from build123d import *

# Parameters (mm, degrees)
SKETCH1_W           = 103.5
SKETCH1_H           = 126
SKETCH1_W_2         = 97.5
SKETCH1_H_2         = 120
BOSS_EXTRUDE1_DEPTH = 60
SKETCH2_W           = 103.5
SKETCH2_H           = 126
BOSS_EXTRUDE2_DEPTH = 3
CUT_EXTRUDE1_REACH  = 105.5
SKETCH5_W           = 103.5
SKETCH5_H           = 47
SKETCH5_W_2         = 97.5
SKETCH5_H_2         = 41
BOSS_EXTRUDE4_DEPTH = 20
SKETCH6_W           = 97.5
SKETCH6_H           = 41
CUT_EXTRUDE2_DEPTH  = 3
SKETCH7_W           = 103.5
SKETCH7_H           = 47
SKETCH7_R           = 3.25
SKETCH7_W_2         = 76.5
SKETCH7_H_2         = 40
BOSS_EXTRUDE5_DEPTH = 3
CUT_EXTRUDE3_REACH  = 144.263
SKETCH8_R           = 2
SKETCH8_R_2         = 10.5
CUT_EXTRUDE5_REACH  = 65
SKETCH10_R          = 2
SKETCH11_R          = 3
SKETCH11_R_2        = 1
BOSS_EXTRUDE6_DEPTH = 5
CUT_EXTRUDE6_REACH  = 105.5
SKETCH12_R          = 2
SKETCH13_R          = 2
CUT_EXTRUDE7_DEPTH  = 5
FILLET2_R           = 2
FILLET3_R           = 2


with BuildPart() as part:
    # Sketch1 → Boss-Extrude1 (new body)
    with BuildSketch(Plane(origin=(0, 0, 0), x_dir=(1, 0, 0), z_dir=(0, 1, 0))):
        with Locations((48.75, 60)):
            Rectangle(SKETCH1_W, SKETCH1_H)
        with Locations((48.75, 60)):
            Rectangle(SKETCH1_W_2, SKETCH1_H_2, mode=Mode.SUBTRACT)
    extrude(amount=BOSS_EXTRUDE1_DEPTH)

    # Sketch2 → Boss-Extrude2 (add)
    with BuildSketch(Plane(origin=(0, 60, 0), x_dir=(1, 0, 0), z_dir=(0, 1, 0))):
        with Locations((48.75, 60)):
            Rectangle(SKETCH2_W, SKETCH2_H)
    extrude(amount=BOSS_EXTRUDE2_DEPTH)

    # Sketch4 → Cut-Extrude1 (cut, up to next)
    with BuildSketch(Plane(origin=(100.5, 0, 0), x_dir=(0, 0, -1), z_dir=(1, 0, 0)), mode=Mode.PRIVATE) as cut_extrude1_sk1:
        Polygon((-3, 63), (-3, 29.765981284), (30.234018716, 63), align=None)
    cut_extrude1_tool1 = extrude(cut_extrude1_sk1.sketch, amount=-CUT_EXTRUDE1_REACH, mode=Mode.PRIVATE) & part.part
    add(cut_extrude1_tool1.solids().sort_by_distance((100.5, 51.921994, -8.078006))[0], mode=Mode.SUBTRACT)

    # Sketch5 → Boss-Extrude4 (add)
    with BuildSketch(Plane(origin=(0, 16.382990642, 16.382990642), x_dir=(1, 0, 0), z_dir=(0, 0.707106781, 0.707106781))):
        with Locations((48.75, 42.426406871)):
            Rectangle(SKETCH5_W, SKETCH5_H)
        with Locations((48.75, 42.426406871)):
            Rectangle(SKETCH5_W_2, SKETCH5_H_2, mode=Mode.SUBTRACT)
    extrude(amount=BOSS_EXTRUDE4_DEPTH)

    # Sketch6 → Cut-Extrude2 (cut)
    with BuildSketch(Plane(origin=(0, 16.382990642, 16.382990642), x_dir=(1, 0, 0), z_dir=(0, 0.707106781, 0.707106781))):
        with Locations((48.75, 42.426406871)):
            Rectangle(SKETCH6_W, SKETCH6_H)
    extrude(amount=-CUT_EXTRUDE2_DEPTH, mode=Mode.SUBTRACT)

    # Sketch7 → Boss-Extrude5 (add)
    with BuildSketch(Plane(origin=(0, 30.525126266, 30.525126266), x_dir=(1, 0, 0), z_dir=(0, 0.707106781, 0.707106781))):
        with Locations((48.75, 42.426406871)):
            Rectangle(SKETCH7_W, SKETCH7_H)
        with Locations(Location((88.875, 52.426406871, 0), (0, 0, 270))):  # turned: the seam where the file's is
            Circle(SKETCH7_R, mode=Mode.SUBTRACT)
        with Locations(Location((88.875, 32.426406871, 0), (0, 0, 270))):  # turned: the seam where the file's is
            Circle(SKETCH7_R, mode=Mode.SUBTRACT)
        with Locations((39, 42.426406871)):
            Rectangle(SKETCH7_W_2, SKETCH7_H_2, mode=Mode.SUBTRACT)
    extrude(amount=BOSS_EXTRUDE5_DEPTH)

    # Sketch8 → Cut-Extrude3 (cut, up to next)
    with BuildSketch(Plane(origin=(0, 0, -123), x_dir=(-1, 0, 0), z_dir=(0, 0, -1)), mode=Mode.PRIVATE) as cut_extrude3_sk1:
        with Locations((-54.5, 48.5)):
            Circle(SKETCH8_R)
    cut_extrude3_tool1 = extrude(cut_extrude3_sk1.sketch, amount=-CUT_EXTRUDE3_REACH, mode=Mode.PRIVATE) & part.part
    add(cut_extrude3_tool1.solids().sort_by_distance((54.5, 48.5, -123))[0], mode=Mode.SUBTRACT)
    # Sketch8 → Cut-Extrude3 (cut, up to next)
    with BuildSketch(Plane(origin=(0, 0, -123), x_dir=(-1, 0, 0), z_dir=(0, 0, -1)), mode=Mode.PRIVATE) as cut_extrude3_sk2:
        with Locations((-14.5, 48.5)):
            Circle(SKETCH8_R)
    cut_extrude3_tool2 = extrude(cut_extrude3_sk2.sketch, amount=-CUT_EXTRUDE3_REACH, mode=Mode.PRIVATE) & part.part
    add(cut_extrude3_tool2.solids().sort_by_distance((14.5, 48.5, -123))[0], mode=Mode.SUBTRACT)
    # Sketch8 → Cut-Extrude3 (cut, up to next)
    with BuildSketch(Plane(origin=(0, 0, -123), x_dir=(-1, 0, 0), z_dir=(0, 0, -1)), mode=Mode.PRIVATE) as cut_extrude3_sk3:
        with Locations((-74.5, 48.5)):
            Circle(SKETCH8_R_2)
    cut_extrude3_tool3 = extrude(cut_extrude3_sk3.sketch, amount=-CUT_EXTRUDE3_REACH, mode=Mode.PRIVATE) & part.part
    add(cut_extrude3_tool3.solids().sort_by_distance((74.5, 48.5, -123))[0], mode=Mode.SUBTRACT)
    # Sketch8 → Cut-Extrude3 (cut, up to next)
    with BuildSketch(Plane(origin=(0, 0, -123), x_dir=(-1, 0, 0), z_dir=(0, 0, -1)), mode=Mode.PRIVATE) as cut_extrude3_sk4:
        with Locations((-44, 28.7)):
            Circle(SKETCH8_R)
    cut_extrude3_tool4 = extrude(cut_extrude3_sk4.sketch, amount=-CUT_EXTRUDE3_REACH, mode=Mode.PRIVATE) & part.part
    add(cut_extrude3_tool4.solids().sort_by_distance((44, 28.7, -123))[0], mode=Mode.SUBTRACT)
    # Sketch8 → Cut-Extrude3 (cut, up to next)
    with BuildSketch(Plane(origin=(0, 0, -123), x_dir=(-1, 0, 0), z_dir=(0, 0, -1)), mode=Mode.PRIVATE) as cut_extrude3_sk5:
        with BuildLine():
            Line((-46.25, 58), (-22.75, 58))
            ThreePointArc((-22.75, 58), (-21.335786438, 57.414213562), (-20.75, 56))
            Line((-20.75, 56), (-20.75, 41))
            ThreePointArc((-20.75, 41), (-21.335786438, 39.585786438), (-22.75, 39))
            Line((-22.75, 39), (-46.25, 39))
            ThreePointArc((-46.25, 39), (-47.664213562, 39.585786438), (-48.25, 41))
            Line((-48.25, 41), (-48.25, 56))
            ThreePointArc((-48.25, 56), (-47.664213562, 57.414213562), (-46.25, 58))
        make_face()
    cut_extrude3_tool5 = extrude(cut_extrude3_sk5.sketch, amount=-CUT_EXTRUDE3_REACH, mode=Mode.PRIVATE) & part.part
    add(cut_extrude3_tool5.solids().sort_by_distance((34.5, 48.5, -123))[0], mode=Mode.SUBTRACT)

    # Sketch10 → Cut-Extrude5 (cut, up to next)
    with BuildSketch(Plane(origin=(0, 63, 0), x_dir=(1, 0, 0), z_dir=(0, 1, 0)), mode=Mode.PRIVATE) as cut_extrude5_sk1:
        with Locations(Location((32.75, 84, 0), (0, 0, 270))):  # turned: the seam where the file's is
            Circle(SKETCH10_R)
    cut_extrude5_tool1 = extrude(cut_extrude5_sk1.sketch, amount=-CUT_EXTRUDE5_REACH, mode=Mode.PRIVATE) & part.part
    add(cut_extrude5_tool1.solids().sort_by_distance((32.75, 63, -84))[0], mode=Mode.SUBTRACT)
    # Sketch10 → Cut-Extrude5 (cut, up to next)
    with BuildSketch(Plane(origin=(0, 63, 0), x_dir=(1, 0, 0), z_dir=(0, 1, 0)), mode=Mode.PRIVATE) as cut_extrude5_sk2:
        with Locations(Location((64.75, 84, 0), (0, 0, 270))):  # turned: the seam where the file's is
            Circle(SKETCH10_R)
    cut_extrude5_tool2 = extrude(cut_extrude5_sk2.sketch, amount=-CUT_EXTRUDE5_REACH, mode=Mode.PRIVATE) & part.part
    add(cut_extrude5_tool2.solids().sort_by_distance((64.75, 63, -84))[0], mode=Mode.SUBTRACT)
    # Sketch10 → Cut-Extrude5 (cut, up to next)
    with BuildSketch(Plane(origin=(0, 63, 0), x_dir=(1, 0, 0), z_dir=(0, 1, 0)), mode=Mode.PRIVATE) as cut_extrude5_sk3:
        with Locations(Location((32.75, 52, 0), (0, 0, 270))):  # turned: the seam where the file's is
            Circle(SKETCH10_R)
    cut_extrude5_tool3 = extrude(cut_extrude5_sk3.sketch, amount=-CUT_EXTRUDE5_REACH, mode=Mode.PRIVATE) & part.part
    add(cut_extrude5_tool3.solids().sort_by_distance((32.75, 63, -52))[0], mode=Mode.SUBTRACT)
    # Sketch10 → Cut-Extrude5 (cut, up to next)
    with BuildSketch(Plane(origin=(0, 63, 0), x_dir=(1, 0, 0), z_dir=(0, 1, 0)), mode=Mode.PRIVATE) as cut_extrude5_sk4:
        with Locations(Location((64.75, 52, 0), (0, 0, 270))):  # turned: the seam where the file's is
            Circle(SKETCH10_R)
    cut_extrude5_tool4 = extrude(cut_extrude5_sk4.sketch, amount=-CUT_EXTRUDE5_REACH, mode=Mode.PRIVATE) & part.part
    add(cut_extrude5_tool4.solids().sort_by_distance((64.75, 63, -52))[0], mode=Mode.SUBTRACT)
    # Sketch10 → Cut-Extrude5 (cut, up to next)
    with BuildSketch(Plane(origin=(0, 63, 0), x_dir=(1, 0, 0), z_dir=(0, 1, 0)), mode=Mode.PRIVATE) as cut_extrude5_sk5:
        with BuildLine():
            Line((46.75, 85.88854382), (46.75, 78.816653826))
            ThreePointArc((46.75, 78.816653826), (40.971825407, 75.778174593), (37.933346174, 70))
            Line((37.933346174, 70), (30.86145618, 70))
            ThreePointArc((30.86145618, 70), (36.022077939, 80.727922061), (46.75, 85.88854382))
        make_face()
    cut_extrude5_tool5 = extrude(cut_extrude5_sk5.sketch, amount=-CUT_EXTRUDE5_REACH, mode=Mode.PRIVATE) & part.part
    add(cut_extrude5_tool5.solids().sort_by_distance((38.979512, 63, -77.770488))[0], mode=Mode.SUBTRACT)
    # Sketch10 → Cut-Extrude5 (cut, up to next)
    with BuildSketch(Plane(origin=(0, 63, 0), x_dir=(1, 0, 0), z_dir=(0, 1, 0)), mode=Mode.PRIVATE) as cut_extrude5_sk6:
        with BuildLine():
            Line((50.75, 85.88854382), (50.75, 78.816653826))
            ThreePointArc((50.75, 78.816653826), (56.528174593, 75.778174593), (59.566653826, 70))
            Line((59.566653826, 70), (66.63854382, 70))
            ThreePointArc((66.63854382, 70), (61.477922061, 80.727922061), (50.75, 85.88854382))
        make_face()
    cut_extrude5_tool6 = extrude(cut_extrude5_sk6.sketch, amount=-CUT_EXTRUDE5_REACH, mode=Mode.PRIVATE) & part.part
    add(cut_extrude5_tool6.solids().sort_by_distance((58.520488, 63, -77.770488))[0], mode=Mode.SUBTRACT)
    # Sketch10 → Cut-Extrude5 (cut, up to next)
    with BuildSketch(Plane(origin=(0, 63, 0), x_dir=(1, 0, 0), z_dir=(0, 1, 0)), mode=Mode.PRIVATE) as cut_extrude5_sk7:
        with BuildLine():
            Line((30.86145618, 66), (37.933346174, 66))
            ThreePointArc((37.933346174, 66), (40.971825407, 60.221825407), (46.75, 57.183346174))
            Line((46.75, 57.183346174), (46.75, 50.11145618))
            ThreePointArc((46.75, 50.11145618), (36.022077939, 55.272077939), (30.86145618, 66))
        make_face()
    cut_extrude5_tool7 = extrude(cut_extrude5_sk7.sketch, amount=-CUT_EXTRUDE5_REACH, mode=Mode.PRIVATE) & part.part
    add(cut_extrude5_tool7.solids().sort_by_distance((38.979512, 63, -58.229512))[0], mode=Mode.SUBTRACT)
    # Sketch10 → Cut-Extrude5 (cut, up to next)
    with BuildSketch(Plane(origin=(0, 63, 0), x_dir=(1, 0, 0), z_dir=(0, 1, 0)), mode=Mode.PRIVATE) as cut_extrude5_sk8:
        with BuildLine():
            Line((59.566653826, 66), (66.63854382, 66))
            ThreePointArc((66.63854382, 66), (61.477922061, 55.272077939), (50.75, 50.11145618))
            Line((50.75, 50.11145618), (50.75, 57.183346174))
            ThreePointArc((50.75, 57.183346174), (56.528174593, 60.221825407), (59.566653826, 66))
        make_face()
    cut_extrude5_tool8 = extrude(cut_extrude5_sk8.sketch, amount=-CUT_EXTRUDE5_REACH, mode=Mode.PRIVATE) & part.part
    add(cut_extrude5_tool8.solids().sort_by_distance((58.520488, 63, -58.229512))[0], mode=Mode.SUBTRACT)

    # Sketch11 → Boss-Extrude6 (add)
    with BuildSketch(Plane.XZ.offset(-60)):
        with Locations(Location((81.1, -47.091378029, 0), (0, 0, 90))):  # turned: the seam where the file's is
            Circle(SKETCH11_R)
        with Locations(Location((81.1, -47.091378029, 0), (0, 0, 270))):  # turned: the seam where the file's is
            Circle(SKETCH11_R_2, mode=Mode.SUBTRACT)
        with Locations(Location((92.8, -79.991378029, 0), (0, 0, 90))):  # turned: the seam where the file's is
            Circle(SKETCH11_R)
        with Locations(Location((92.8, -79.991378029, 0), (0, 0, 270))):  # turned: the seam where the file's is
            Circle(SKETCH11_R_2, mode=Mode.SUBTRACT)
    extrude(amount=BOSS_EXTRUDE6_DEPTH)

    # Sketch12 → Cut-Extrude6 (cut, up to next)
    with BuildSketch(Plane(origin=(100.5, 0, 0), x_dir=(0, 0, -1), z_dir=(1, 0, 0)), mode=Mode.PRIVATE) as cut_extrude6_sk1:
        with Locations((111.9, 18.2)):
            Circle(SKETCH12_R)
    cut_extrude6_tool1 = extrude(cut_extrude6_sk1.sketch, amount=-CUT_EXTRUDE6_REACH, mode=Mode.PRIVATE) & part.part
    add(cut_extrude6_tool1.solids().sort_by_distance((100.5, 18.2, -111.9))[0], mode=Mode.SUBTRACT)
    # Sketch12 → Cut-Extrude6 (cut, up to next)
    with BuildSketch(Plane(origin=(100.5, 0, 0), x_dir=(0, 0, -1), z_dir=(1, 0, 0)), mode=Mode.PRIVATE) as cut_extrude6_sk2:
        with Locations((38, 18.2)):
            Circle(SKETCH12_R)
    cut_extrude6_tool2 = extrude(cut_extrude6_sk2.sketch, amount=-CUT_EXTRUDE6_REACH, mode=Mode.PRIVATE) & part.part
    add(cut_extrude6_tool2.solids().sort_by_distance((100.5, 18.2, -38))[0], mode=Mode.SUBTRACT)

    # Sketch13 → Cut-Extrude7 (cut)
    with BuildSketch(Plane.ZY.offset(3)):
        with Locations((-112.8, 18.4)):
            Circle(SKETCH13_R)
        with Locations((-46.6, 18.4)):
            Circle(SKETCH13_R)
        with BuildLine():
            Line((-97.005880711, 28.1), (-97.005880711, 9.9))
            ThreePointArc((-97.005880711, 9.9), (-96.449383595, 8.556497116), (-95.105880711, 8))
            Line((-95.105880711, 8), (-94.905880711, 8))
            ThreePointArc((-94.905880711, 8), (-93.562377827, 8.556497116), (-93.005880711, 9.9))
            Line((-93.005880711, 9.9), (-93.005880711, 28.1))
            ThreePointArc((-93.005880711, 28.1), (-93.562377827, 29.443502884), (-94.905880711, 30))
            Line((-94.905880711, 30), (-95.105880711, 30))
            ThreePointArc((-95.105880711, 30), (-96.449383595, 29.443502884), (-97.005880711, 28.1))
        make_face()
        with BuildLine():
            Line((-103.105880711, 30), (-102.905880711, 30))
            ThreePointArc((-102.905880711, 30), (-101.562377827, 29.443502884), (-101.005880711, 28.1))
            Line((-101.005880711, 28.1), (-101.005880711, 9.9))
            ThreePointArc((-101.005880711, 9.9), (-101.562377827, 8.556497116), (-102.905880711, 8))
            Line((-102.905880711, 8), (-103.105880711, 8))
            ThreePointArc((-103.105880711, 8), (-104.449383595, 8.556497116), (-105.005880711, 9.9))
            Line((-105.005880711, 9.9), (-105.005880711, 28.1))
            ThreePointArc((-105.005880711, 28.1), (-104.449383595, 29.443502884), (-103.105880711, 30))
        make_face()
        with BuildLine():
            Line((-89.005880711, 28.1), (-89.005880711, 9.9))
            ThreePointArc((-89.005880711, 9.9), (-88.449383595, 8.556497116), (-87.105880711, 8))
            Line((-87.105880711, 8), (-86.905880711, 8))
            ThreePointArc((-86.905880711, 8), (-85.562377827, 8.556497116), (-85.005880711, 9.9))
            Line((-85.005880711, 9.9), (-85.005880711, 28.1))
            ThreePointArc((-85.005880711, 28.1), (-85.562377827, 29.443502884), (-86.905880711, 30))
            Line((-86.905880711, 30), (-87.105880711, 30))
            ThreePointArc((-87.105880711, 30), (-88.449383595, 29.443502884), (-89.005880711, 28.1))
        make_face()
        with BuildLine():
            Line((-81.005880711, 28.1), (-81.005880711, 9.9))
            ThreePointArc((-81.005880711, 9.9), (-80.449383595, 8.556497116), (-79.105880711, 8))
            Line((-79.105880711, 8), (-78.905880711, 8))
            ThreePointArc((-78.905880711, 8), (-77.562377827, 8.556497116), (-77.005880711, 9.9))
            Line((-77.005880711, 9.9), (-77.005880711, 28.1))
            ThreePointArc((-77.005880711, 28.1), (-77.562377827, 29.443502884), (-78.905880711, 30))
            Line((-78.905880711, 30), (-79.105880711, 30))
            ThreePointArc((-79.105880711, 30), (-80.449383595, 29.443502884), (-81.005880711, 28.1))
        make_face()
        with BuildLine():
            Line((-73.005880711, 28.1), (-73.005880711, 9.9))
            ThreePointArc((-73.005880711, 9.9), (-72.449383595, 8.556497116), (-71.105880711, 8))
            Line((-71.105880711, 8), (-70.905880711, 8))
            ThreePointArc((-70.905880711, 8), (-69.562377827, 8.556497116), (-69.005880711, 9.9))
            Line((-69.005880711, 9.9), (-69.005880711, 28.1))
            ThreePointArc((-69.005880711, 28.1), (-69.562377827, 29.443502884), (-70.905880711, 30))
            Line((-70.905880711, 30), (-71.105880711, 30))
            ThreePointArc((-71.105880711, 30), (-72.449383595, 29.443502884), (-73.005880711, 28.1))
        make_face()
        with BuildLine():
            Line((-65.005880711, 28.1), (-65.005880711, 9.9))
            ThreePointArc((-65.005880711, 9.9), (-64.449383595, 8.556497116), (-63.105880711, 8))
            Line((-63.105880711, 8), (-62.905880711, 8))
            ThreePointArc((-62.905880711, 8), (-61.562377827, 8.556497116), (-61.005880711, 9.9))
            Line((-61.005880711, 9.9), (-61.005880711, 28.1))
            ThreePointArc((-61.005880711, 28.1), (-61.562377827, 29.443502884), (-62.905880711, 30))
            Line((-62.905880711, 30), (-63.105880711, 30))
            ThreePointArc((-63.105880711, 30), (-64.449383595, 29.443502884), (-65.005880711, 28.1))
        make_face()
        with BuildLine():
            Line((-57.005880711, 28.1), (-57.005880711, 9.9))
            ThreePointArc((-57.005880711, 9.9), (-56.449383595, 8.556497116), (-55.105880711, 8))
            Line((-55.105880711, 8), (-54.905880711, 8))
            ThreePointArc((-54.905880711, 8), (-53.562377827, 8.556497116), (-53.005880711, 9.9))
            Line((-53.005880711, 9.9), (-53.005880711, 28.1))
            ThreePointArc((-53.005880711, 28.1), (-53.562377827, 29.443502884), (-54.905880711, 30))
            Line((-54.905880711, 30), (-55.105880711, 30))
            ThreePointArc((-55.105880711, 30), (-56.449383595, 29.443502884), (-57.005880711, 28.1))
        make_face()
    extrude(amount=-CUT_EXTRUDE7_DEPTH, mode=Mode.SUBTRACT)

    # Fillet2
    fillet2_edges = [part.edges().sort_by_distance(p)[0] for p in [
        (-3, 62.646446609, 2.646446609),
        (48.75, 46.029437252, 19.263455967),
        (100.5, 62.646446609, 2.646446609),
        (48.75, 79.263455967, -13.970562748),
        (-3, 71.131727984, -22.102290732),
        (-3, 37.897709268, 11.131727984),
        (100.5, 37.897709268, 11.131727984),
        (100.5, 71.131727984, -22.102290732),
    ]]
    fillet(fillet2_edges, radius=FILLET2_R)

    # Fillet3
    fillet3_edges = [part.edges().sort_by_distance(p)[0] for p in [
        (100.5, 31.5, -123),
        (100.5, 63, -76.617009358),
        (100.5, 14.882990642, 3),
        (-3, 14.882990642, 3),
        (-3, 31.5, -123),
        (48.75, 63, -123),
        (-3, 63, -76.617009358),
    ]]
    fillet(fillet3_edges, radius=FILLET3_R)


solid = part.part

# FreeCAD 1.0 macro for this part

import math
import FreeCAD as App
import Part
import Sketcher
from FreeCAD import Vector


def edges_at(feature, points):
    """Names of the edges that pass closest to the given points."""
    edges = feature.Shape.Edges
    near = lambda p: min(range(len(edges)), key=lambda i: edges[i].distToShape(Part.Vertex(*p))[0])
    return sorted({f"Edge{near(p) + 1}" for p in points})


def add_polygon(sketch, points):
    """Adds a closed chain of lines whose ends are joined by coincident constraints."""
    first, n = sketch.GeometryCount, len(points)
    for a, b in zip(points, points[1:] + points[:1]):
        sketch.addGeometry(Part.LineSegment(App.Vector(*a, 0), App.Vector(*b, 0)), False)
    for i in range(n):
        sketch.addConstraint(Sketcher.Constraint("Coincident", first + i, 2, first + (i + 1) % n, 1))

doc = App.newDocument("Part")
body = doc.addObject("PartDesign::Body", "Body")

sketch1 = doc.addObject("Sketcher::SketchObject", "Sketch")
body.addObject(sketch1)
sketch1.AttachmentSupport = (doc.XZ_Plane, [""])
sketch1.MapMode = "FlatFace"
add_polygon(sketch1, [(-3, -123), (-3, 3), (100, 3), (100, -123)])
add_polygon(sketch1, [(98, 0), (0, 0), (0, -120), (98, -120)])
sketch1.addConstraint([
    Sketcher.Constraint("Vertical", 0),
    Sketcher.Constraint("Horizontal", 1),
    Sketcher.Constraint("Vertical", 2),
    Sketcher.Constraint("Horizontal", 3),
    Sketcher.Constraint("Horizontal", 4),
    Sketcher.Constraint("Vertical", 5),
    Sketcher.Constraint("Horizontal", 6),
    Sketcher.Constraint("Vertical", 7),
    Sketcher.Constraint("Coincident", 4, 2, -1, 1),
    Sketcher.Constraint("DistanceY", 0, 1, 0, 2, 126.0),
    Sketcher.Constraint("DistanceY", 5, 2, 5, 1, 120.0),
    Sketcher.Constraint("DistanceX", 1, 1, 1, 2, 103.5),
    Sketcher.Constraint("DistanceX", 4, 2, 4, 1, 97.5),
    Sketcher.Constraint("DistanceX", 0, 2, -1, 1, 3.0),
    Sketcher.Constraint("DistanceY", -1, 1, 0, 2, 3.0),
])
pad1 = doc.addObject("PartDesign::Pad", "Pad")
body.addObject(pad1)
pad1.Profile = sketch1
pad1.Length = 60
pad1.Reversed = True

sketch2 = doc.addObject("Sketcher::SketchObject", "Sketch001")
body.addObject(sketch2)
sketch2.AttachmentSupport = (doc.XZ_Plane, [""])
sketch2.MapMode = "FlatFace"
sketch2.AttachmentOffset = App.Placement(Vector(0, 0, -60), App.Rotation())
add_polygon(sketch2, [(-3, -123), (-3, 3), (100, 3), (100, -123)])
sketch2.addConstraint([
    Sketcher.Constraint("Vertical", 0),
    Sketcher.Constraint("Horizontal", 1),
    Sketcher.Constraint("Vertical", 2),
    Sketcher.Constraint("Horizontal", 3),
    Sketcher.Constraint("DistanceY", 0, 1, 0, 2, 126.0),
    Sketcher.Constraint("DistanceX", 1, 1, 1, 2, 103.5),
    Sketcher.Constraint("DistanceX", 0, 2, -1, 1, 3.0),
    Sketcher.Constraint("DistanceY", -1, 1, 0, 2, 3.0),
])
pad2 = doc.addObject("PartDesign::Pad", "Pad001")
body.addObject(pad2)
pad2.Profile = sketch2
pad2.Length = 3
pad2.Reversed = True

sketch3 = doc.addObject("Sketcher::SketchObject", "Sketch002")
body.addObject(sketch3)
sketch3.AttachmentSupport = (doc.YZ_Plane, [""])
sketch3.MapMode = "FlatFace"
sketch3.AttachmentOffset = App.Placement(Vector(0, 0, 100.5), App.Rotation())
add_polygon(sketch3, [(63, 3), (30, 3), (63, -30)])
sketch3.addConstraint([
    Sketcher.Constraint("Horizontal", 0),
    Sketcher.Constraint("Vertical", 2),
    Sketcher.Constraint("Equal", 0, 2),
    Sketcher.Constraint("Distance", 1, 47.0),
    Sketcher.Constraint("DistanceY", -1, 1, 0, 2, 3.0),
    Sketcher.Constraint("DistanceX", -1, 1, 1, 2, 63.0),
])
pocket1 = doc.addObject("PartDesign::Pocket", "Pocket")
body.addObject(pocket1)
pocket1.Profile = sketch3
pocket1.Length = 103.5

sketch4 = doc.addObject("Sketcher::SketchObject", "Sketch003")
body.addObject(sketch4)
sketch4.Placement = App.Placement(Vector(0, 16.382991, 16.382991), App.Rotation(Vector(1, 0, 0), Vector(0, 0.707106781, -0.707106781), Vector(0, 0.707106781, 0.707106781), "ZXY"))
add_polygon(sketch4, [(-3, 66), (-3, 19), (100, 19), (100, 66)])
add_polygon(sketch4, [(98, 22), (0, 22), (0, 63), (98, 63)])
sketch4.addConstraint([
    Sketcher.Constraint("Vertical", 0),
    Sketcher.Constraint("Horizontal", 1),
    Sketcher.Constraint("Vertical", 2),
    Sketcher.Constraint("Horizontal", 3),
    Sketcher.Constraint("Horizontal", 4),
    Sketcher.Constraint("Vertical", 5),
    Sketcher.Constraint("Horizontal", 6),
    Sketcher.Constraint("Vertical", 7),
    Sketcher.Constraint("PointOnObject", 4, 2, -2),
    Sketcher.Constraint("DistanceY", 0, 2, 0, 1, 47.0),
    Sketcher.Constraint("DistanceY", 5, 1, 5, 2, 41.0),
    Sketcher.Constraint("DistanceX", 1, 1, 1, 2, 103.5),
    Sketcher.Constraint("DistanceX", 4, 2, 4, 1, 97.5),
    Sketcher.Constraint("DistanceX", 0, 2, -1, 1, 3.0),
    Sketcher.Constraint("DistanceY", 0, 2, 4, 2, 3.0),
    Sketcher.Constraint("DistanceY", -1, 1, 0, 2, 18.926407),
])
pad3 = doc.addObject("PartDesign::Pad", "Pad002")
body.addObject(pad3)
pad3.Profile = sketch4
pad3.Length = 20

sketch5 = doc.addObject("Sketcher::SketchObject", "Sketch004")
body.addObject(sketch5)
sketch5.Placement = App.Placement(Vector(0, 16.382991, 16.382991), App.Rotation(Vector(1, 0, 0), Vector(0, 0.707106781, -0.707106781), Vector(0, 0.707106781, 0.707106781), "ZXY"))
add_polygon(sketch5, [(0, 63), (0, 22), (98, 22), (98, 63)])
sketch5.addConstraint([
    Sketcher.Constraint("Vertical", 0),
    Sketcher.Constraint("Horizontal", 1),
    Sketcher.Constraint("Vertical", 2),
    Sketcher.Constraint("Horizontal", 3),
    Sketcher.Constraint("PointOnObject", 0, 2, -2),
    Sketcher.Constraint("DistanceY", 0, 2, 0, 1, 41.0),
    Sketcher.Constraint("DistanceX", 1, 1, 1, 2, 97.5),
    Sketcher.Constraint("DistanceY", -1, 1, 0, 2, 21.926407),
])
pocket2 = doc.addObject("PartDesign::Pocket", "Pocket001")
body.addObject(pocket2)
pocket2.Profile = sketch5
pocket2.Length = 3

sketch6 = doc.addObject("Sketcher::SketchObject", "Sketch005")
body.addObject(sketch6)
sketch6.Placement = App.Placement(Vector(0, 30.525126, 30.525126), App.Rotation(Vector(1, 0, 0), Vector(0, 0.707106781, -0.707106781), Vector(0, 0.707106781, 0.707106781), "ZXY"))
add_polygon(sketch6, [(-3, 65.9), (-3, 18.9), (100.5, 18.9), (100.5, 65.9)])
sketch6.addGeometry(Part.Circle(Vector(88.9, 32.4, 0), Vector(0, 0, 1), 3.2), False)
add_polygon(sketch6, [(77.2, 22.4), (0.8, 22.4), (0.8, 62.4), (77.2, 62.4)])
sketch6.addGeometry(Part.Circle(Vector(88.9, 52.4, 0), Vector(0, 0, 1), 3.2), False)
sketch6.addConstraint([
    Sketcher.Constraint("Vertical", 0),
    Sketcher.Constraint("Horizontal", 1),
    Sketcher.Constraint("Vertical", 2),
    Sketcher.Constraint("Horizontal", 3),
    Sketcher.Constraint("Horizontal", 5),
    Sketcher.Constraint("Vertical", 6),
    Sketcher.Constraint("Horizontal", 7),
    Sketcher.Constraint("Vertical", 8),
    Sketcher.Constraint("Equal", 4, 9),
    Sketcher.Constraint("Vertical", 4, 3, 9, 3),
    Sketcher.Constraint("Diameter", 4, 6.5),
    Sketcher.Constraint("DistanceY", 0, 2, 0, 1, 47.0),
    Sketcher.Constraint("DistanceY", 6, 1, 6, 2, 40.0),
    Sketcher.Constraint("DistanceX", 1, 1, 1, 2, 103.5),
    Sketcher.Constraint("DistanceX", 5, 2, 5, 1, 76.5),
    Sketcher.Constraint("DistanceX", 0, 2, -1, 1, 3.0),
    Sketcher.Constraint("DistanceY", 4, 3, 9, 3, 20.0),
    Sketcher.Constraint("DistanceY", 5, 2, 4, 3, 10.0),
    Sketcher.Constraint("DistanceY", 0, 2, 4, 3, 13.5),
    Sketcher.Constraint("DistanceX", -1, 1, 5, 2, 0.75),
    Sketcher.Constraint("DistanceX", -1, 1, 4, 3, 88.875),
    Sketcher.Constraint("DistanceY", -1, 1, 4, 3, 32.426407),
])
pad4 = doc.addObject("PartDesign::Pad", "Pad003")
body.addObject(pad4)
pad4.Profile = sketch6
pad4.Length = 3

sketch7 = doc.addObject("Sketcher::SketchObject", "Sketch006")
body.addObject(sketch7)
sketch7.AttachmentSupport = (doc.XY_Plane, [""])
sketch7.MapMode = "FlatFace"
sketch7.AttachmentOffset = App.Placement(Vector(0, 0, -123), App.Rotation())
sketch7.addGeometry(Part.Circle(Vector(54.5, 48.5, 0), Vector(0, 0, 1), 2), False)
sketch7.addConstraint([
    Sketcher.Constraint("Diameter", 0, 4.0),
    Sketcher.Constraint("DistanceX", -1, 1, 0, 3, 54.5),
    Sketcher.Constraint("DistanceY", -1, 1, 0, 3, 48.5),
])
pocket3 = doc.addObject("PartDesign::Pocket", "Pocket002")
body.addObject(pocket3)
pocket3.Profile = sketch7
pocket3.Type = "UpToFirst"
pocket3.Reversed = True

sketch8 = doc.addObject("Sketcher::SketchObject", "Sketch007")
body.addObject(sketch8)
sketch8.AttachmentSupport = (doc.XY_Plane, [""])
sketch8.MapMode = "FlatFace"
sketch8.AttachmentOffset = App.Placement(Vector(0, 0, -123), App.Rotation())
sketch8.addGeometry(Part.Circle(Vector(14.5, 48.5, 0), Vector(0, 0, 1), 2), False)
sketch8.addConstraint([
    Sketcher.Constraint("Diameter", 0, 4.0),
    Sketcher.Constraint("DistanceX", -1, 1, 0, 3, 14.5),
    Sketcher.Constraint("DistanceY", -1, 1, 0, 3, 48.5),
])
pocket4 = doc.addObject("PartDesign::Pocket", "Pocket003")
body.addObject(pocket4)
pocket4.Profile = sketch8
pocket4.Type = "UpToFirst"
pocket4.Reversed = True

sketch9 = doc.addObject("Sketcher::SketchObject", "Sketch008")
body.addObject(sketch9)
sketch9.AttachmentSupport = (doc.XY_Plane, [""])
sketch9.MapMode = "FlatFace"
sketch9.AttachmentOffset = App.Placement(Vector(0, 0, -123), App.Rotation())
sketch9.addGeometry(Part.Circle(Vector(74, 48, 0), Vector(0, 0, 1), 10), False)
sketch9.addConstraint([
    Sketcher.Constraint("Diameter", 0, 21.0),
    Sketcher.Constraint("DistanceX", -1, 1, 0, 3, 74.5),
    Sketcher.Constraint("DistanceY", -1, 1, 0, 3, 48.5),
])
pocket5 = doc.addObject("PartDesign::Pocket", "Pocket004")
body.addObject(pocket5)
pocket5.Profile = sketch9
pocket5.Type = "UpToFirst"
pocket5.Reversed = True

sketch10 = doc.addObject("Sketcher::SketchObject", "Sketch009")
body.addObject(sketch10)
sketch10.AttachmentSupport = (doc.XY_Plane, [""])
sketch10.MapMode = "FlatFace"
sketch10.AttachmentOffset = App.Placement(Vector(0, 0, -123), App.Rotation())
sketch10.addGeometry(Part.Circle(Vector(44, 28.7, 0), Vector(0, 0, 1), 2), False)
sketch10.addConstraint([
    Sketcher.Constraint("Diameter", 0, 4.0),
    Sketcher.Constraint("DistanceX", -1, 1, 0, 3, 44.0),
    Sketcher.Constraint("DistanceY", -1, 1, 0, 3, 28.7),
])
pocket6 = doc.addObject("PartDesign::Pocket", "Pocket005")
body.addObject(pocket6)
pocket6.Profile = sketch10
pocket6.Type = "UpToFirst"
pocket6.Reversed = True

sketch11 = doc.addObject("Sketcher::SketchObject", "Sketch010")
body.addObject(sketch11)
sketch11.AttachmentSupport = (doc.XY_Plane, [""])
sketch11.MapMode = "FlatFace"
sketch11.AttachmentOffset = App.Placement(Vector(0, 0, -123), App.Rotation())
sketch11.addGeometry([
    Part.LineSegment(Vector(22.8, 58, 0), Vector(46.2, 58, 0)),
    Part.ArcOfCircle(Part.Circle(Vector(46.2, 56, 0), Vector(0, 0, 1), 2), math.radians(0), math.radians(90)),
    Part.LineSegment(Vector(48.2, 56, 0), Vector(48.2, 41, 0)),
    Part.ArcOfCircle(Part.Circle(Vector(46.2, 41, 0), Vector(0, 0, 1), 2), math.radians(-90), math.radians(0)),
    Part.LineSegment(Vector(46.2, 39, 0), Vector(22.8, 39, 0)),
    Part.ArcOfCircle(Part.Circle(Vector(22.8, 41, 0), Vector(0, 0, 1), 2), math.radians(-180), math.radians(-90)),
    Part.LineSegment(Vector(20.8, 41, 0), Vector(20.8, 56, 0)),
    Part.ArcOfCircle(Part.Circle(Vector(22.8, 56, 0), Vector(0, 0, 1), 2), math.radians(90), math.radians(180)),
], False)
sketch11.addConstraint([
    Sketcher.Constraint("Tangent", 0, 2, 1, 2),
    Sketcher.Constraint("Tangent", 1, 1, 2, 1),
    Sketcher.Constraint("Tangent", 2, 2, 3, 2),
    Sketcher.Constraint("Tangent", 3, 1, 4, 1),
    Sketcher.Constraint("Tangent", 4, 2, 5, 2),
    Sketcher.Constraint("Tangent", 5, 1, 6, 1),
    Sketcher.Constraint("Tangent", 6, 2, 7, 2),
    Sketcher.Constraint("Tangent", 7, 1, 0, 1),
    Sketcher.Constraint("Horizontal", 0),
    Sketcher.Constraint("Vertical", 2),
    Sketcher.Constraint("Horizontal", 4),
    Sketcher.Constraint("Vertical", 6),
    Sketcher.Constraint("Equal", 1, 3),
    Sketcher.Constraint("Equal", 3, 5),
    Sketcher.Constraint("Equal", 5, 7),
    Sketcher.Constraint("Radius", 1, 2.0),
    Sketcher.Constraint("DistanceY", 2, 2, 2, 1, 15.0),
    Sketcher.Constraint("DistanceX", 0, 1, 0, 2, 23.5),
    Sketcher.Constraint("DistanceY", -1, 1, 1, 3, 56.0),
    Sketcher.Constraint("DistanceX", -1, 1, 1, 3, 46.25),
])
pocket7 = doc.addObject("PartDesign::Pocket", "Pocket006")
body.addObject(pocket7)
pocket7.Profile = sketch11
pocket7.Type = "UpToFirst"
pocket7.Reversed = True

sketch12 = doc.addObject("Sketcher::SketchObject", "Sketch011")
body.addObject(sketch12)
sketch12.AttachmentSupport = (doc.XZ_Plane, [""])
sketch12.MapMode = "FlatFace"
sketch12.AttachmentOffset = App.Placement(Vector(0, 0, -63), App.Rotation())
sketch12.addGeometry(Part.Circle(Vector(32.8, -84, 0), Vector(0, 0, 1), 2), False)
sketch12.addConstraint([
    Sketcher.Constraint("Diameter", 0, 4.0),
    Sketcher.Constraint("DistanceY", 0, 3, -1, 1, 84.0),
    Sketcher.Constraint("DistanceX", -1, 1, 0, 3, 32.75),
])
pocket8 = doc.addObject("PartDesign::Pocket", "Pocket007")
body.addObject(pocket8)
pocket8.Profile = sketch12
pocket8.Type = "UpToFirst"
pocket8.Reversed = True

sketch13 = doc.addObject("Sketcher::SketchObject", "Sketch012")
body.addObject(sketch13)
sketch13.AttachmentSupport = (doc.XZ_Plane, [""])
sketch13.MapMode = "FlatFace"
sketch13.AttachmentOffset = App.Placement(Vector(0, 0, -63), App.Rotation())
sketch13.addGeometry(Part.Circle(Vector(64.8, -84, 0), Vector(0, 0, 1), 2), False)
sketch13.addConstraint([
    Sketcher.Constraint("Diameter", 0, 4.0),
    Sketcher.Constraint("DistanceY", 0, 3, -1, 1, 84.0),
    Sketcher.Constraint("DistanceX", -1, 1, 0, 3, 64.75),
])
pocket9 = doc.addObject("PartDesign::Pocket", "Pocket008")
body.addObject(pocket9)
pocket9.Profile = sketch13
pocket9.Type = "UpToFirst"
pocket9.Reversed = True

sketch14 = doc.addObject("Sketcher::SketchObject", "Sketch013")
body.addObject(sketch14)
sketch14.AttachmentSupport = (doc.XZ_Plane, [""])
sketch14.MapMode = "FlatFace"
sketch14.AttachmentOffset = App.Placement(Vector(0, 0, -63), App.Rotation())
sketch14.addGeometry(Part.Circle(Vector(32.8, -52, 0), Vector(0, 0, 1), 2), False)
sketch14.addConstraint([
    Sketcher.Constraint("Diameter", 0, 4.0),
    Sketcher.Constraint("DistanceY", 0, 3, -1, 1, 52.0),
    Sketcher.Constraint("DistanceX", -1, 1, 0, 3, 32.75),
])
pocket10 = doc.addObject("PartDesign::Pocket", "Pocket009")
body.addObject(pocket10)
pocket10.Profile = sketch14
pocket10.Type = "UpToFirst"
pocket10.Reversed = True

sketch15 = doc.addObject("Sketcher::SketchObject", "Sketch014")
body.addObject(sketch15)
sketch15.AttachmentSupport = (doc.XZ_Plane, [""])
sketch15.MapMode = "FlatFace"
sketch15.AttachmentOffset = App.Placement(Vector(0, 0, -63), App.Rotation())
sketch15.addGeometry(Part.Circle(Vector(64.8, -52, 0), Vector(0, 0, 1), 2), False)
sketch15.addConstraint([
    Sketcher.Constraint("Diameter", 0, 4.0),
    Sketcher.Constraint("DistanceY", 0, 3, -1, 1, 52.0),
    Sketcher.Constraint("DistanceX", -1, 1, 0, 3, 64.75),
])
pocket11 = doc.addObject("PartDesign::Pocket", "Pocket010")
body.addObject(pocket11)
pocket11.Profile = sketch15
pocket11.Type = "UpToFirst"
pocket11.Reversed = True

sketch16 = doc.addObject("Sketcher::SketchObject", "Sketch015")
body.addObject(sketch16)
sketch16.AttachmentSupport = (doc.XZ_Plane, [""])
sketch16.MapMode = "FlatFace"
sketch16.AttachmentOffset = App.Placement(Vector(0, 0, -63), App.Rotation())
sketch16.addGeometry([
    Part.LineSegment(Vector(47, -79, 0), Vector(47, -86, 0)),
    Part.ArcOfCircle(Part.Circle(Vector(49, -68, 0), Vector(0, 0, 1), 18), math.radians(-174), math.radians(-96)),
    Part.LineSegment(Vector(31, -70, 0), Vector(38, -70, 0)),
    Part.ArcOfCircle(Part.Circle(Vector(49, -68, 0), Vector(0, 0, 1), 11), math.radians(-170), math.radians(-100)),
], False)
sketch16.addConstraint([
    Sketcher.Constraint("Coincident", 0, 2, 1, 2),
    Sketcher.Constraint("Coincident", 1, 1, 2, 1),
    Sketcher.Constraint("Coincident", 2, 2, 3, 1),
    Sketcher.Constraint("Coincident", 3, 2, 0, 1),
    Sketcher.Constraint("Vertical", 0),
    Sketcher.Constraint("Horizontal", 2),
    Sketcher.Constraint("Coincident", 3, 3, 1, 3),
    Sketcher.Constraint("Equal", 2, 0),
    Sketcher.Constraint("Radius", 1, 18.0),
    Sketcher.Constraint("Radius", 3, 11.0),
    Sketcher.Constraint("DistanceY", 1, 3, -1, 1, 68.0),
    Sketcher.Constraint("DistanceY", 1, 1, -1, 1, 70.0),
    Sketcher.Constraint("DistanceX", -1, 1, 1, 3, 48.75),
])
pocket12 = doc.addObject("PartDesign::Pocket", "Pocket011")
body.addObject(pocket12)
pocket12.Profile = sketch16
pocket12.Type = "UpToFirst"
pocket12.Reversed = True

sketch17 = doc.addObject("Sketcher::SketchObject", "Sketch016")
body.addObject(sketch17)
sketch17.AttachmentSupport = (doc.XZ_Plane, [""])
sketch17.MapMode = "FlatFace"
sketch17.AttachmentOffset = App.Placement(Vector(0, 0, -63), App.Rotation())
sketch17.addGeometry([
    Part.LineSegment(Vector(51, -86, 0), Vector(51, -79, 0)),
    Part.ArcOfCircle(Part.Circle(Vector(49, -68, 0), Vector(0, 0, 1), 11), math.radians(-80), math.radians(-10)),
    Part.LineSegment(Vector(60, -70, 0), Vector(67, -70, 0)),
    Part.ArcOfCircle(Part.Circle(Vector(49, -68, 0), Vector(0, 0, 1), 18), math.radians(-84), math.radians(-6)),
], False)
sketch17.addConstraint([
    Sketcher.Constraint("Coincident", 0, 2, 1, 1),
    Sketcher.Constraint("Coincident", 1, 2, 2, 1),
    Sketcher.Constraint("Coincident", 2, 2, 3, 2),
    Sketcher.Constraint("Coincident", 3, 1, 0, 1),
    Sketcher.Constraint("Vertical", 0),
    Sketcher.Constraint("Horizontal", 2),
    Sketcher.Constraint("Coincident", 3, 3, 1, 3),
    Sketcher.Constraint("Equal", 2, 0),
    Sketcher.Constraint("Radius", 1, 11.0),
    Sketcher.Constraint("Radius", 3, 18.0),
    Sketcher.Constraint("DistanceY", 1, 3, -1, 1, 68.0),
    Sketcher.Constraint("DistanceY", 1, 2, -1, 1, 70.0),
    Sketcher.Constraint("DistanceX", -1, 1, 1, 3, 48.75),
])
pocket13 = doc.addObject("PartDesign::Pocket", "Pocket012")
body.addObject(pocket13)
pocket13.Profile = sketch17
pocket13.Type = "UpToFirst"
pocket13.Reversed = True

sketch18 = doc.addObject("Sketcher::SketchObject", "Sketch017")
body.addObject(sketch18)
sketch18.AttachmentSupport = (doc.XZ_Plane, [""])
sketch18.MapMode = "FlatFace"
sketch18.AttachmentOffset = App.Placement(Vector(0, 0, -63), App.Rotation())
sketch18.addGeometry([
    Part.LineSegment(Vector(38, -66, 0), Vector(31, -66, 0)),
    Part.ArcOfCircle(Part.Circle(Vector(49, -68, 0), Vector(0, 0, 1), 18), math.radians(96), math.radians(174)),
    Part.LineSegment(Vector(47, -50, 0), Vector(47, -57, 0)),
    Part.ArcOfCircle(Part.Circle(Vector(49, -68, 0), Vector(0, 0, 1), 11), math.radians(100), math.radians(170)),
], False)
sketch18.addConstraint([
    Sketcher.Constraint("Coincident", 0, 2, 1, 2),
    Sketcher.Constraint("Coincident", 1, 1, 2, 1),
    Sketcher.Constraint("Coincident", 2, 2, 3, 1),
    Sketcher.Constraint("Coincident", 3, 2, 0, 1),
    Sketcher.Constraint("Horizontal", 0),
    Sketcher.Constraint("Vertical", 2),
    Sketcher.Constraint("Coincident", 3, 3, 1, 3),
    Sketcher.Constraint("Equal", 0, 2),
    Sketcher.Constraint("Radius", 1, 18.0),
    Sketcher.Constraint("Radius", 3, 11.0),
    Sketcher.Constraint("DistanceY", 1, 3, -1, 1, 68.0),
    Sketcher.Constraint("DistanceY", 0, 2, -1, 1, 66.0),
    Sketcher.Constraint("DistanceX", -1, 1, 1, 3, 48.75),
])
pocket14 = doc.addObject("PartDesign::Pocket", "Pocket013")
body.addObject(pocket14)
pocket14.Profile = sketch18
pocket14.Type = "UpToFirst"
pocket14.Reversed = True

sketch19 = doc.addObject("Sketcher::SketchObject", "Sketch018")
body.addObject(sketch19)
sketch19.AttachmentSupport = (doc.XZ_Plane, [""])
sketch19.MapMode = "FlatFace"
sketch19.AttachmentOffset = App.Placement(Vector(0, 0, -63), App.Rotation())
sketch19.addGeometry([
    Part.LineSegment(Vector(67, -66, 0), Vector(60, -66, 0)),
    Part.ArcOfCircle(Part.Circle(Vector(49, -68, 0), Vector(0, 0, 1), 11), math.radians(10), math.radians(80)),
    Part.LineSegment(Vector(51, -57, 0), Vector(51, -50, 0)),
    Part.ArcOfCircle(Part.Circle(Vector(49, -68, 0), Vector(0, 0, 1), 18), math.radians(6), math.radians(84)),
], False)
sketch19.addConstraint([
    Sketcher.Constraint("Coincident", 0, 2, 1, 1),
    Sketcher.Constraint("Coincident", 1, 2, 2, 1),
    Sketcher.Constraint("Coincident", 2, 2, 3, 2),
    Sketcher.Constraint("Coincident", 3, 1, 0, 1),
    Sketcher.Constraint("Horizontal", 0),
    Sketcher.Constraint("Vertical", 2),
    Sketcher.Constraint("Coincident", 3, 3, 1, 3),
    Sketcher.Constraint("Equal", 0, 2),
    Sketcher.Constraint("Radius", 1, 11.0),
    Sketcher.Constraint("Radius", 3, 18.0),
    Sketcher.Constraint("DistanceY", 1, 3, -1, 1, 68.0),
    Sketcher.Constraint("DistanceY", 0, 2, -1, 1, 66.0),
    Sketcher.Constraint("DistanceX", -1, 1, 1, 3, 48.75),
])
pocket15 = doc.addObject("PartDesign::Pocket", "Pocket014")
body.addObject(pocket15)
pocket15.Profile = sketch19
pocket15.Type = "UpToFirst"
pocket15.Reversed = True

sketch20 = doc.addObject("Sketcher::SketchObject", "Sketch019")
body.addObject(sketch20)
sketch20.AttachmentSupport = (doc.XZ_Plane, [""])
sketch20.MapMode = "FlatFace"
sketch20.AttachmentOffset = App.Placement(Vector(0, 0, -60), App.Rotation())
sketch20.addGeometry([
    Part.Circle(Vector(81.1, -47.1, 0), Vector(0, 0, 1), 3),
    Part.Circle(Vector(81.1, -47.1, 0), Vector(0, 0, 1), 1),
    Part.Circle(Vector(92.8, -80, 0), Vector(0, 0, 1), 3),
    Part.Circle(Vector(92.8, -80, 0), Vector(0, 0, 1), 1),
], False)
sketch20.addConstraint([
    Sketcher.Constraint("Coincident", 1, 3, 0, 3),
    Sketcher.Constraint("Coincident", 3, 3, 2, 3),
    Sketcher.Constraint("Equal", 0, 2),
    Sketcher.Constraint("Equal", 1, 3),
    Sketcher.Constraint("Diameter", 0, 6.0),
    Sketcher.Constraint("Diameter", 1, 2.0),
    Sketcher.Constraint("DistanceX", -1, 1, 0, 3, 81.1),
    Sketcher.Constraint("DistanceX", -1, 1, 2, 3, 92.8),
    Sketcher.Constraint("DistanceY", 2, 3, 0, 3, 32.9),
    Sketcher.Constraint("DistanceY", 0, 3, -1, 1, 47.091378),
])
pad5 = doc.addObject("PartDesign::Pad", "Pad004")
body.addObject(pad5)
pad5.Profile = sketch20
pad5.Length = 5

sketch21 = doc.addObject("Sketcher::SketchObject", "Sketch020")
body.addObject(sketch21)
sketch21.AttachmentSupport = (doc.YZ_Plane, [""])
sketch21.MapMode = "FlatFace"
sketch21.AttachmentOffset = App.Placement(Vector(0, 0, 100.5), App.Rotation())
sketch21.addGeometry(Part.Circle(Vector(18.2, -111.9, 0), Vector(0, 0, 1), 2), False)
sketch21.addConstraint([
    Sketcher.Constraint("Diameter", 0, 4.0),
    Sketcher.Constraint("DistanceX", -1, 1, 0, 3, 18.2),
    Sketcher.Constraint("DistanceY", 0, 3, -1, 1, 111.9),
])
pocket16 = doc.addObject("PartDesign::Pocket", "Pocket015")
body.addObject(pocket16)
pocket16.Profile = sketch21
pocket16.Type = "UpToFirst"

sketch22 = doc.addObject("Sketcher::SketchObject", "Sketch021")
body.addObject(sketch22)
sketch22.AttachmentSupport = (doc.YZ_Plane, [""])
sketch22.MapMode = "FlatFace"
sketch22.AttachmentOffset = App.Placement(Vector(0, 0, 100.5), App.Rotation())
sketch22.addGeometry(Part.Circle(Vector(18.2, -38, 0), Vector(0, 0, 1), 2), False)
sketch22.addConstraint([
    Sketcher.Constraint("Diameter", 0, 4.0),
    Sketcher.Constraint("DistanceY", 0, 3, -1, 1, 38.0),
    Sketcher.Constraint("DistanceX", -1, 1, 0, 3, 18.2),
])
pocket17 = doc.addObject("PartDesign::Pocket", "Pocket016")
body.addObject(pocket17)
pocket17.Profile = sketch22
pocket17.Type = "UpToFirst"

sketch23 = doc.addObject("Sketcher::SketchObject", "Sketch022")
body.addObject(sketch23)
sketch23.AttachmentSupport = (doc.YZ_Plane, [""])
sketch23.MapMode = "FlatFace"
sketch23.AttachmentOffset = App.Placement(Vector(0, 0, -3), App.Rotation())
sketch23.addGeometry([
    Part.Circle(Vector(18.4, -112.8, 0), Vector(0, 0, 1), 2),
    Part.Circle(Vector(18.4, -46.6, 0), Vector(0, 0, 1), 2),
    Part.LineSegment(Vector(28.1, -97.01, 0), Vector(9.9, -97.01, 0)),
    Part.ArcOfCircle(Part.Circle(Vector(9.9, -95.11, 0), Vector(0, 0, 1), 1.9), math.radians(-180), math.radians(-90)),
    Part.LineSegment(Vector(8, -95.11, 0), Vector(8, -94.91, 0)),
    Part.ArcOfCircle(Part.Circle(Vector(9.9, -94.91, 0), Vector(0, 0, 1), 1.9), math.radians(90), math.radians(180)),
    Part.LineSegment(Vector(9.9, -93.01, 0), Vector(28.1, -93.01, 0)),
    Part.ArcOfCircle(Part.Circle(Vector(28.1, -94.91, 0), Vector(0, 0, 1), 1.9), math.radians(0), math.radians(90)),
    Part.LineSegment(Vector(30, -94.91, 0), Vector(30, -95.11, 0)),
    Part.ArcOfCircle(Part.Circle(Vector(28.1, -95.11, 0), Vector(0, 0, 1), 1.9), math.radians(-90), math.radians(0)),
    Part.LineSegment(Vector(30, -102.91, 0), Vector(30, -103.11, 0)),
    Part.ArcOfCircle(Part.Circle(Vector(28.1, -103.11, 0), Vector(0, 0, 1), 1.9), math.radians(-90), math.radians(0)),
    Part.LineSegment(Vector(28.1, -105.01, 0), Vector(9.9, -105.01, 0)),
    Part.ArcOfCircle(Part.Circle(Vector(9.9, -103.11, 0), Vector(0, 0, 1), 1.9), math.radians(-180), math.radians(-90)),
    Part.LineSegment(Vector(8, -103.11, 0), Vector(8, -102.91, 0)),
    Part.ArcOfCircle(Part.Circle(Vector(9.9, -102.91, 0), Vector(0, 0, 1), 1.9), math.radians(90), math.radians(180)),
    Part.LineSegment(Vector(9.9, -101.01, 0), Vector(28.1, -101.01, 0)),
    Part.ArcOfCircle(Part.Circle(Vector(28.1, -102.91, 0), Vector(0, 0, 1), 1.9), math.radians(0), math.radians(90)),
    Part.LineSegment(Vector(28.1, -89.01, 0), Vector(9.9, -89.01, 0)),
    Part.ArcOfCircle(Part.Circle(Vector(9.9, -87.11, 0), Vector(0, 0, 1), 1.9), math.radians(-180), math.radians(-90)),
    Part.LineSegment(Vector(8, -87.11, 0), Vector(8, -86.91, 0)),
    Part.ArcOfCircle(Part.Circle(Vector(9.9, -86.91, 0), Vector(0, 0, 1), 1.9), math.radians(90), math.radians(180)),
    Part.LineSegment(Vector(9.9, -85.01, 0), Vector(28.1, -85.01, 0)),
    Part.ArcOfCircle(Part.Circle(Vector(28.1, -86.91, 0), Vector(0, 0, 1), 1.9), math.radians(0), math.radians(90)),
    Part.LineSegment(Vector(30, -86.91, 0), Vector(30, -87.11, 0)),
    Part.ArcOfCircle(Part.Circle(Vector(28.1, -87.11, 0), Vector(0, 0, 1), 1.9), math.radians(-90), math.radians(0)),
    Part.LineSegment(Vector(28.1, -81.01, 0), Vector(9.9, -81.01, 0)),
    Part.ArcOfCircle(Part.Circle(Vector(9.9, -79.11, 0), Vector(0, 0, 1), 1.9), math.radians(-180), math.radians(-90)),
    Part.LineSegment(Vector(8, -79.11, 0), Vector(8, -78.91, 0)),
    Part.ArcOfCircle(Part.Circle(Vector(9.9, -78.91, 0), Vector(0, 0, 1), 1.9), math.radians(90), math.radians(180)),
    Part.LineSegment(Vector(9.9, -77.01, 0), Vector(28.1, -77.01, 0)),
    Part.ArcOfCircle(Part.Circle(Vector(28.1, -78.91, 0), Vector(0, 0, 1), 1.9), math.radians(0), math.radians(90)),
    Part.LineSegment(Vector(30, -78.91, 0), Vector(30, -79.11, 0)),
    Part.ArcOfCircle(Part.Circle(Vector(28.1, -79.11, 0), Vector(0, 0, 1), 1.9), math.radians(-90), math.radians(0)),
    Part.LineSegment(Vector(28.1, -73.01, 0), Vector(9.9, -73.01, 0)),
    Part.ArcOfCircle(Part.Circle(Vector(9.9, -71.11, 0), Vector(0, 0, 1), 1.9), math.radians(-180), math.radians(-90)),
    Part.LineSegment(Vector(8, -71.11, 0), Vector(8, -70.91, 0)),
    Part.ArcOfCircle(Part.Circle(Vector(9.9, -70.91, 0), Vector(0, 0, 1), 1.9), math.radians(90), math.radians(180)),
    Part.LineSegment(Vector(9.9, -69.01, 0), Vector(28.1, -69.01, 0)),
    Part.ArcOfCircle(Part.Circle(Vector(28.1, -70.91, 0), Vector(0, 0, 1), 1.9), math.radians(0), math.radians(90)),
    Part.LineSegment(Vector(30, -70.91, 0), Vector(30, -71.11, 0)),
    Part.ArcOfCircle(Part.Circle(Vector(28.1, -71.11, 0), Vector(0, 0, 1), 1.9), math.radians(-90), math.radians(0)),
    Part.LineSegment(Vector(28.1, -65.01, 0), Vector(9.9, -65.01, 0)),
    Part.ArcOfCircle(Part.Circle(Vector(9.9, -63.11, 0), Vector(0, 0, 1), 1.9), math.radians(-180), math.radians(-90)),
    Part.LineSegment(Vector(8, -63.11, 0), Vector(8, -62.91, 0)),
    Part.ArcOfCircle(Part.Circle(Vector(9.9, -62.91, 0), Vector(0, 0, 1), 1.9), math.radians(90), math.radians(180)),
    Part.LineSegment(Vector(9.9, -61.01, 0), Vector(28.1, -61.01, 0)),
    Part.ArcOfCircle(Part.Circle(Vector(28.1, -62.91, 0), Vector(0, 0, 1), 1.9), math.radians(0), math.radians(90)),
    Part.LineSegment(Vector(30, -62.91, 0), Vector(30, -63.11, 0)),
    Part.ArcOfCircle(Part.Circle(Vector(28.1, -63.11, 0), Vector(0, 0, 1), 1.9), math.radians(-90), math.radians(0)),
    Part.LineSegment(Vector(28.1, -57.01, 0), Vector(9.9, -57.01, 0)),
    Part.ArcOfCircle(Part.Circle(Vector(9.9, -55.11, 0), Vector(0, 0, 1), 1.9), math.radians(-180), math.radians(-90)),
    Part.LineSegment(Vector(8, -55.11, 0), Vector(8, -54.91, 0)),
    Part.ArcOfCircle(Part.Circle(Vector(9.9, -54.91, 0), Vector(0, 0, 1), 1.9), math.radians(90), math.radians(180)),
    Part.LineSegment(Vector(9.9, -53.01, 0), Vector(28.1, -53.01, 0)),
    Part.ArcOfCircle(Part.Circle(Vector(28.1, -54.91, 0), Vector(0, 0, 1), 1.9), math.radians(0), math.radians(90)),
    Part.LineSegment(Vector(30, -54.91, 0), Vector(30, -55.11, 0)),
    Part.ArcOfCircle(Part.Circle(Vector(28.1, -55.11, 0), Vector(0, 0, 1), 1.9), math.radians(-90), math.radians(0)),
], False)
sketch23.addConstraint([
    Sketcher.Constraint("Tangent", 2, 2, 3, 2),
    Sketcher.Constraint("Tangent", 3, 1, 4, 1),
    Sketcher.Constraint("Tangent", 4, 2, 5, 2),
    Sketcher.Constraint("Tangent", 5, 1, 6, 1),
    Sketcher.Constraint("Tangent", 6, 2, 7, 2),
    Sketcher.Constraint("Tangent", 7, 1, 8, 1),
    Sketcher.Constraint("Tangent", 8, 2, 9, 2),
    Sketcher.Constraint("Tangent", 9, 1, 2, 1),
    Sketcher.Constraint("Tangent", 10, 2, 11, 2),
    Sketcher.Constraint("Tangent", 11, 1, 12, 1),
    Sketcher.Constraint("Tangent", 12, 2, 13, 2),
    Sketcher.Constraint("Tangent", 13, 1, 14, 1),
    Sketcher.Constraint("Tangent", 14, 2, 15, 2),
    Sketcher.Constraint("Tangent", 15, 1, 16, 1),
    Sketcher.Constraint("Tangent", 16, 2, 17, 2),
    Sketcher.Constraint("Tangent", 17, 1, 10, 1),
    Sketcher.Constraint("Tangent", 18, 2, 19, 2),
    Sketcher.Constraint("Tangent", 19, 1, 20, 1),
    Sketcher.Constraint("Tangent", 20, 2, 21, 2),
    Sketcher.Constraint("Tangent", 21, 1, 22, 1),
    Sketcher.Constraint("Tangent", 22, 2, 23, 2),
    Sketcher.Constraint("Tangent", 23, 1, 24, 1),
    Sketcher.Constraint("Tangent", 24, 2, 25, 2),
    Sketcher.Constraint("Tangent", 25, 1, 18, 1),
    Sketcher.Constraint("Tangent", 26, 2, 27, 2),
    Sketcher.Constraint("Tangent", 27, 1, 28, 1),
    Sketcher.Constraint("Tangent", 28, 2, 29, 2),
    Sketcher.Constraint("Tangent", 29, 1, 30, 1),
    Sketcher.Constraint("Tangent", 30, 2, 31, 2),
    Sketcher.Constraint("Tangent", 31, 1, 32, 1),
    Sketcher.Constraint("Tangent", 32, 2, 33, 2),
    Sketcher.Constraint("Tangent", 33, 1, 26, 1),
    Sketcher.Constraint("Tangent", 34, 2, 35, 2),
    Sketcher.Constraint("Tangent", 35, 1, 36, 1),
    Sketcher.Constraint("Tangent", 36, 2, 37, 2),
    Sketcher.Constraint("Tangent", 37, 1, 38, 1),
    Sketcher.Constraint("Tangent", 38, 2, 39, 2),
    Sketcher.Constraint("Tangent", 39, 1, 40, 1),
    Sketcher.Constraint("Tangent", 40, 2, 41, 2),
    Sketcher.Constraint("Tangent", 41, 1, 34, 1),
    Sketcher.Constraint("Tangent", 42, 2, 43, 2),
    Sketcher.Constraint("Tangent", 43, 1, 44, 1),
    Sketcher.Constraint("Tangent", 44, 2, 45, 2),
    Sketcher.Constraint("Tangent", 45, 1, 46, 1),
    Sketcher.Constraint("Tangent", 46, 2, 47, 2),
    Sketcher.Constraint("Tangent", 47, 1, 48, 1),
    Sketcher.Constraint("Tangent", 48, 2, 49, 2),
    Sketcher.Constraint("Tangent", 49, 1, 42, 1),
    Sketcher.Constraint("Tangent", 50, 2, 51, 2),
    Sketcher.Constraint("Tangent", 51, 1, 52, 1),
    Sketcher.Constraint("Tangent", 52, 2, 53, 2),
    Sketcher.Constraint("Tangent", 53, 1, 54, 1),
    Sketcher.Constraint("Tangent", 54, 2, 55, 2),
    Sketcher.Constraint("Tangent", 55, 1, 56, 1),
    Sketcher.Constraint("Tangent", 56, 2, 57, 2),
    Sketcher.Constraint("Tangent", 57, 1, 50, 1),
    Sketcher.Constraint("Horizontal", 2),
    Sketcher.Constraint("Vertical", 4),
    Sketcher.Constraint("Horizontal", 6),
    Sketcher.Constraint("Vertical", 8),
    Sketcher.Constraint("Vertical", 10),
    Sketcher.Constraint("Horizontal", 12),
    Sketcher.Constraint("Vertical", 14),
    Sketcher.Constraint("Horizontal", 16),
    Sketcher.Constraint("Horizontal", 18),
    Sketcher.Constraint("Vertical", 20),
    Sketcher.Constraint("Horizontal", 22),
    Sketcher.Constraint("Vertical", 24),
    Sketcher.Constraint("Horizontal", 26),
    Sketcher.Constraint("Vertical", 28),
    Sketcher.Constraint("Horizontal", 30),
    Sketcher.Constraint("Vertical", 32),
    Sketcher.Constraint("Horizontal", 34),
    Sketcher.Constraint("Vertical", 36),
    Sketcher.Constraint("Horizontal", 38),
    Sketcher.Constraint("Vertical", 40),
    Sketcher.Constraint("Horizontal", 42),
    Sketcher.Constraint("Vertical", 44),
    Sketcher.Constraint("Horizontal", 46),
    Sketcher.Constraint("Vertical", 48),
    Sketcher.Constraint("Horizontal", 50),
    Sketcher.Constraint("Vertical", 52),
    Sketcher.Constraint("Horizontal", 54),
    Sketcher.Constraint("Vertical", 56),
    Sketcher.Constraint("Equal", 0, 1),
    Sketcher.Constraint("Equal", 3, 5),
    Sketcher.Constraint("Equal", 5, 7),
    Sketcher.Constraint("Equal", 7, 9),
    Sketcher.Constraint("Equal", 9, 11),
    Sketcher.Constraint("Equal", 11, 13),
    Sketcher.Constraint("Equal", 13, 15),
    Sketcher.Constraint("Equal", 15, 17),
    Sketcher.Constraint("Equal", 17, 19),
    Sketcher.Constraint("Equal", 19, 21),
    Sketcher.Constraint("Equal", 21, 23),
    Sketcher.Constraint("Equal", 23, 25),
    Sketcher.Constraint("Equal", 25, 27),
    Sketcher.Constraint("Equal", 27, 29),
    Sketcher.Constraint("Equal", 29, 31),
    Sketcher.Constraint("Equal", 31, 33),
    Sketcher.Constraint("Equal", 33, 35),
    Sketcher.Constraint("Equal", 35, 37),
    Sketcher.Constraint("Equal", 37, 39),
    Sketcher.Constraint("Equal", 39, 41),
    Sketcher.Constraint("Equal", 41, 43),
    Sketcher.Constraint("Equal", 43, 45),
    Sketcher.Constraint("Equal", 45, 47),
    Sketcher.Constraint("Equal", 47, 49),
    Sketcher.Constraint("Equal", 49, 51),
    Sketcher.Constraint("Equal", 51, 53),
    Sketcher.Constraint("Equal", 53, 55),
    Sketcher.Constraint("Equal", 55, 57),
    Sketcher.Constraint("Vertical", 0, 3, 1, 3),
    Sketcher.Constraint("Vertical", 9, 3, 11, 3),
    Sketcher.Constraint("Vertical", 5, 3, 13, 3),
    Sketcher.Constraint("Vertical", 15, 3, 19, 3),
    Sketcher.Constraint("Vertical", 17, 3, 23, 3),
    Sketcher.Constraint("Vertical", 21, 3, 27, 3),
    Sketcher.Constraint("Vertical", 25, 3, 31, 3),
    Sketcher.Constraint("Vertical", 29, 3, 35, 3),
    Sketcher.Constraint("Vertical", 33, 3, 39, 3),
    Sketcher.Constraint("Vertical", 37, 3, 43, 3),
    Sketcher.Constraint("Vertical", 41, 3, 47, 3),
    Sketcher.Constraint("Vertical", 45, 3, 51, 3),
    Sketcher.Constraint("Vertical", 49, 3, 55, 3),
    Sketcher.Constraint("Equal", 8, 10),
    Sketcher.Constraint("Equal", 14, 20),
    Sketcher.Constraint("Equal", 24, 28),
    Sketcher.Constraint("Equal", 32, 36),
    Sketcher.Constraint("Equal", 40, 44),
    Sketcher.Constraint("Equal", 48, 52),
    Sketcher.Constraint("Diameter", 0, 4.0),
    Sketcher.Constraint("Radius", 3, 1.9),
    Sketcher.Constraint("DistanceX", 2, 2, 2, 1, 18.2),
    Sketcher.Constraint("DistanceY", 4, 1, 4, 2, 0.2),
    Sketcher.Constraint("DistanceX", -1, 1, 3, 1, 8.0),
    Sketcher.Constraint("DistanceX", -1, 1, 0, 3, 18.4),
    Sketcher.Constraint("DistanceY", 0, 3, -1, 1, 112.8),
    Sketcher.Constraint("DistanceY", 1, 3, -1, 1, 46.6),
    Sketcher.Constraint("DistanceY", 3, 3, -1, 1, 95.105881),
    Sketcher.Constraint("DistanceY", 11, 3, -1, 1, 103.105881),
    Sketcher.Constraint("DistanceY", 19, 3, -1, 1, 87.105881),
    Sketcher.Constraint("DistanceY", 27, 3, -1, 1, 79.105881),
    Sketcher.Constraint("DistanceY", 35, 3, -1, 1, 71.105881),
    Sketcher.Constraint("DistanceY", 43, 3, -1, 1, 63.105881),
    Sketcher.Constraint("DistanceY", 51, 3, -1, 1, 55.105881),
])
pocket18 = doc.addObject("PartDesign::Pocket", "Pocket017")
body.addObject(pocket18)
pocket18.Profile = sketch23
pocket18.Length = 5
pocket18.Reversed = True
doc.recompute()

fillet = doc.addObject("PartDesign::Fillet", "Fillet")
body.addObject(fillet)
fillet.Base = (pocket18, edges_at(pocket18, [
    (-3, 62.646, 2.646),
    (48.75, 46.029, 19.263),
    (100.5, 62.646, 2.646),
    (48.75, 79.263, -13.971),
    (-3, 71.132, -22.102),
    (-3, 37.898, 11.132),
    (100.5, 37.898, 11.132),
    (100.5, 71.132, -22.102),
]))
fillet.Radius = 2
doc.recompute()

fillet2 = doc.addObject("PartDesign::Fillet", "Fillet001")
body.addObject(fillet2)
fillet2.Base = (fillet, edges_at(fillet, [
    (100.5, 31.5, -123),
    (100.5, 63, -75.203),
    (100.5, 16.297, 3),
    (-3, 16.297, 3),
    (-3, 31.5, -123),
    (48.75, 63, -123),
    (-3, 63, -75.203),
]))
fillet2.Radius = 2

doc.recompute()
